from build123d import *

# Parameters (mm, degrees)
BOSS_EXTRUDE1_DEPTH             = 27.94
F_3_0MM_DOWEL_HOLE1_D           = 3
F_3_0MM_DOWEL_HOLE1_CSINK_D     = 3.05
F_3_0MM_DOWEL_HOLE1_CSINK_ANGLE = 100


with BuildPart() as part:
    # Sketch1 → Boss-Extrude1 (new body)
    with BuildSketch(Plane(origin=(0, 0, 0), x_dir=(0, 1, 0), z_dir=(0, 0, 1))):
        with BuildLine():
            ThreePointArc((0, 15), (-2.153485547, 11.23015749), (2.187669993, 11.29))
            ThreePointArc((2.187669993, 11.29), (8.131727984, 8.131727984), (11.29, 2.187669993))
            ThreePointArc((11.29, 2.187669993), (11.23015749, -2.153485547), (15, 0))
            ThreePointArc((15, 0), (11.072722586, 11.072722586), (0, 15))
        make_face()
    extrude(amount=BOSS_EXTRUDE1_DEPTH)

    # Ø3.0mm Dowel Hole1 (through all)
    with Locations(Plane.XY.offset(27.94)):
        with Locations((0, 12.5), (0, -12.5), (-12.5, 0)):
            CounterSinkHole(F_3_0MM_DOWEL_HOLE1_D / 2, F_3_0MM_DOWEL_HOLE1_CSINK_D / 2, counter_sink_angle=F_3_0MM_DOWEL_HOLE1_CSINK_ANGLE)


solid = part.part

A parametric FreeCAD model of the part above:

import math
import FreeCAD as App
import Part
import Sketcher

V = App.Vector

doc = App.newDocument("Part")
params = doc.addObject("Spreadsheet::Sheet", "Params")
for row, (alias, value) in enumerate([
    ("sketch1_radius", "2.5 mm"),
    ("sketch1_radius2", "11.5 mm"),
    ("pad1_length", "27.94 mm"),
    ("sketch2_diameter", "3 mm"),
    ("hole_diameter", "3 mm"),
    ("hole_csink_diameter", "3.05 mm"),
], start=1):
    params.set(f"A{row}", alias)
    params.set(f"B{row}", "=" + value)
    params.setAlias(f"B{row}", alias)

body = doc.addObject("PartDesign::Body", "Body")

# Sketch on XY plane
sketch1 = body.newObject("Sketcher::SketchObject", "Sketch")
sketch1.AttachmentSupport = (doc.getObject("XY_Plane"), [""])
sketch1.MapMode = "FlatFace"
sketch1.addGeometry([
    Part.ArcOfCircle(Part.Circle(V(-12.5, 0, 0), V(0, 0, 1), 2.5), math.radians(180), math.radians(421.053024)),
    Part.ArcOfCircle(Part.Circle(V(0, 0, 0), V(0, 0, 1), 11.5), math.radians(100.966334), math.radians(169.033666)),
    Part.ArcOfCircle(Part.Circle(V(0, 12.5, 0), V(0, 0, 1), 2.5), math.radians(-151.053024), math.radians(90)),
    Part.ArcOfCircle(Part.Circle(V(-1.414214, 1.414214, 0), V(0, 0, 1), 13.659194), math.radians(84.057194), math.radians(185.942806)),
], False)
sketch1.addConstraint([
    Sketcher.Constraint("Coincident", 0, 2, 1, 2),
    Sketcher.Constraint("Coincident", 1, 1, 2, 1),
    Sketcher.Constraint("Coincident", 2, 2, 3, 1),
    Sketcher.Constraint("Coincident", 3, 2, 0, 1),
    Sketcher.Constraint("Coincident", 1, 3, -1, 1),
    Sketcher.Constraint("Equal", 0, 2),
    Sketcher.Constraint("PointOnObject", 0, 3, -1),
    Sketcher.Constraint("PointOnObject", 2, 3, -2),
    Sketcher.Constraint("PointOnObject", 2, 2, -2),
    Sketcher.Constraint("PointOnObject", 3, 2, -1),
    Sketcher.Constraint("Radius", 0, 2.5),
    Sketcher.Constraint("Radius", 1, 11.5),
    Sketcher.Constraint("DistanceY", -1, 1, 2, 2, 15.0),
    Sketcher.Constraint("DistanceX", 3, 2, -1, 1, 15.0),
    Sketcher.Constraint("Radius", 3, 13.659194),
])
sketch1.setExpression("Constraints[10]", "Params.sketch1_radius")
sketch1.setExpression("Constraints[11]", "Params.sketch1_radius2")
pad1 = body.newObject("PartDesign::Pad", "Pad")
pad1.Profile = sketch1
pad1.setExpression("Length", "Params.pad1_length")

# Sketch on XY plane
sketch2 = body.newObject("Sketcher::SketchObject", "Sketch001")
sketch2.AttachmentSupport = (doc.getObject("XY_Plane"), [""])
sketch2.MapMode = "FlatFace"
sketch2.AttachmentOffset = App.Placement(V(0, 0, 27.94), App.Rotation())
sketch2.addGeometry([
    Part.Circle(V(0, 12.5, 0), V(0, 0, 1), 1.5),
    Part.Circle(V(0, -12.5, 0), V(0, 0, 1), 1.5),
    Part.Circle(V(-12.5, 0, 0), V(0, 0, 1), 1.5),
], False)
sketch2.addConstraint([
    Sketcher.Constraint("Equal", 0, 1),
    Sketcher.Constraint("Equal", 1, 2),
    Sketcher.Constraint("Symmetric", 0, 3, 1, 3, -1, 1),
    Sketcher.Constraint("PointOnObject", 0, 3, -2),
    Sketcher.Constraint("PointOnObject", 2, 3, -1),
    Sketcher.Constraint("Diameter", 0, 3.0),
    Sketcher.Constraint("DistanceY", 1, 3, 0, 3, 25.0),
    Sketcher.Constraint("DistanceX", 2, 3, -1, 1, 12.5),
])
sketch2.setExpression("Constraints[5]", "Params.sketch2_diameter")
doc.recompute()
hole = body.newObject("PartDesign::Hole", "Hole")
hole.Profile = sketch2
hole.ThreadType = "None"
hole.setExpression("Diameter", "Params.hole_diameter")
hole.DepthType = "ThroughAll"
hole.HoleCutType = "Countersink"
hole.setExpression("HoleCutDiameter", "Params.hole_csink_diameter")
hole.HoleCutCountersinkAngle = 100

doc.recompute()
